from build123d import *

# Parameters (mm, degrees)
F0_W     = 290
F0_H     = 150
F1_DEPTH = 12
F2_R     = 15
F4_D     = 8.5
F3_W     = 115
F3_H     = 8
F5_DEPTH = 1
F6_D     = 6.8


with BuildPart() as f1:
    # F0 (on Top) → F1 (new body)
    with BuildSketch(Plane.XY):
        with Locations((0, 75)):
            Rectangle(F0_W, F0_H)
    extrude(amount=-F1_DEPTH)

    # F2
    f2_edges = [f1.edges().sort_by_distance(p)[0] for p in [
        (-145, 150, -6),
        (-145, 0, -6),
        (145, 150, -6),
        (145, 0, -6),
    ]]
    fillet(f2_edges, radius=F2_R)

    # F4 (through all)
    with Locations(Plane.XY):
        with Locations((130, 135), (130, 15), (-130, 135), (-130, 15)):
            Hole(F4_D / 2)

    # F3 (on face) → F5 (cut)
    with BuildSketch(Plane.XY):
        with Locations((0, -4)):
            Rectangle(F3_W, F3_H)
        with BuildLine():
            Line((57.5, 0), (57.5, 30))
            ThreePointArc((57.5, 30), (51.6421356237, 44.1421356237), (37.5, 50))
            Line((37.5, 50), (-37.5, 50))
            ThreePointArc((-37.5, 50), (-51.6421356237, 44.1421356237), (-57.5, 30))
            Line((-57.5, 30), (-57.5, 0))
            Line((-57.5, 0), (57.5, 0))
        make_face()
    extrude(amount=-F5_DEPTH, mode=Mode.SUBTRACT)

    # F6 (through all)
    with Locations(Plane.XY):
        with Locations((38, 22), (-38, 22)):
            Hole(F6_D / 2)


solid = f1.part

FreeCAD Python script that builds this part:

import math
import FreeCAD as App
import Part
import Sketcher
from FreeCAD import Vector


def edges_at(feature, points):
    """Names of the edges that pass closest to the given points."""
    edges = feature.Shape.Edges
    near = lambda p: min(range(len(edges)), key=lambda i: edges[i].distToShape(Part.Vertex(*p))[0])
    return sorted({f"Edge{near(p) + 1}" for p in points})


def add_polygon(sketch, points):
    """Adds a closed chain of lines whose ends are joined by coincident constraints."""
    first, n = sketch.GeometryCount, len(points)
    for a, b in zip(points, points[1:] + points[:1]):
        sketch.addGeometry(Part.LineSegment(App.Vector(*a, 0), App.Vector(*b, 0)), False)
    for i in range(n):
        sketch.addConstraint(Sketcher.Constraint("Coincident", first + i, 2, first + (i + 1) % n, 1))

doc = App.newDocument("Part")
params = doc.addObject("Spreadsheet::Sheet", "Params")
for row, (alias, value) in enumerate([
    ("sketch1_width", "290 mm"),
    ("sketch1_height", "150 mm"),
    ("pad1_length", "12 mm"),
    ("fillet_radius", "15 mm"),
    ("sketch2_diameter", "8.5 mm"),
    ("hole_diameter", "8.5 mm"),
    ("sketch3_radius", "20 mm"),
    ("sketch3_width", "115 mm"),
    ("sketch3_height", "38 mm"),
    ("pocket1_length", "1 mm"),
    ("sketch4_diameter", "6.8 mm"),
    ("hole2_diameter", "6.8 mm"),
], start=1):
    params.set(f"A{row}", alias)
    params.set(f"B{row}", "=" + value)
    params.setAlias(f"B{row}", alias)

body = doc.addObject("PartDesign::Body", "Body")

# Sketch on XY plane
sketch1 = body.newObject("Sketcher::SketchObject", "Sketch")
sketch1.AttachmentSupport = (doc.getObject("XY_Plane"), [""])
sketch1.MapMode = "FlatFace"
add_polygon(sketch1, [(-145, 150), (-145, 0), (145, 0), (145, 150)])  # lines 0-3
sketch1.addConstraint(Sketcher.Constraint("Vertical", 0))
sketch1.addConstraint(Sketcher.Constraint("Horizontal", 1))
sketch1.addConstraint(Sketcher.Constraint("Vertical", 2))
sketch1.addConstraint(Sketcher.Constraint("Horizontal", 3))
sketch1.addConstraint(Sketcher.Constraint("Symmetric", 0, 2, 1, 2, -1, 1))
sketch1.addConstraint(Sketcher.Constraint("DistanceX", 1, 1, 1, 2, 290.0))
sketch1.addConstraint(Sketcher.Constraint("DistanceY", 0, 2, 0, 1, 150.0))
sketch1.setExpression("Constraints[9]", "Params.sketch1_width")
sketch1.setExpression("Constraints[10]", "Params.sketch1_height")
pad1 = body.newObject("PartDesign::Pad", "Pad")
pad1.Profile = sketch1
pad1.setExpression("Length", "Params.pad1_length")
pad1.Reversed = True
doc.recompute()

fillet = body.newObject("PartDesign::Fillet", "Fillet")
fillet.Base = (pad1, edges_at(pad1, [
    (-145, 150, -6),
    (-145, 0, -6),
    (145, 150, -6),
    (145, 0, -6),
]))
fillet.setExpression("Radius", "Params.fillet_radius")

# Sketch on XY plane
sketch2 = body.newObject("Sketcher::SketchObject", "Sketch001")
sketch2.AttachmentSupport = (doc.getObject("XY_Plane"), [""])
sketch2.MapMode = "FlatFace"
sketch2.addGeometry(Part.Circle(Vector(130, 135, 0), Vector(0, 0, 1), 4.2), False)
sketch2.addGeometry(Part.Circle(Vector(130, 15, 0), Vector(0, 0, 1), 4.2), False)
sketch2.addGeometry(Part.Circle(Vector(-130, 135, 0), Vector(0, 0, 1), 4.2), False)
sketch2.addGeometry(Part.Circle(Vector(-130, 15, 0), Vector(0, 0, 1), 4.2), False)
sketch2.addConstraint(Sketcher.Constraint("Equal", 0, 1))
sketch2.addConstraint(Sketcher.Constraint("Equal", 1, 2))
sketch2.addConstraint(Sketcher.Constraint("Equal", 2, 3))
sketch2.addConstraint(Sketcher.Constraint("Symmetric", 0, 3, 2, 3, -2))
sketch2.addConstraint(Sketcher.Constraint("Symmetric", 1, 3, 3, 3, -2))
sketch2.addConstraint(Sketcher.Constraint("Vertical", 0, 3, 1, 3))
sketch2.addConstraint(Sketcher.Constraint("Diameter", 0, 8.5))
sketch2.addConstraint(Sketcher.Constraint("DistanceX", -1, 1, 0, 3, 130.0))
sketch2.addConstraint(Sketcher.Constraint("DistanceY", -1, 1, 0, 3, 135.0))
sketch2.addConstraint(Sketcher.Constraint("DistanceY", -1, 1, 1, 3, 15.0))
sketch2.setExpression("Constraints[6]", "Params.sketch2_diameter")
doc.recompute()
hole = body.newObject("PartDesign::Hole", "Hole")
hole.Profile = sketch2
hole.ThreadType = "None"
hole.setExpression("Diameter", "Params.hole_diameter")
hole.DepthType = "ThroughAll"

# Sketch on XY plane
sketch3 = body.newObject("Sketcher::SketchObject", "Sketch002")
sketch3.AttachmentSupport = (doc.getObject("XY_Plane"), [""])
sketch3.MapMode = "FlatFace"
sketch3.addGeometry(Part.LineSegment(Vector(-58, -8, 0), Vector(58, -8, 0)), False)
sketch3.addGeometry(Part.LineSegment(Vector(58, -8, 0), Vector(58, 30, 0)), False)
sketch3.addGeometry(Part.ArcOfCircle(Part.Circle(Vector(38, 30, 0), Vector(0, 0, 1), 20), math.radians(0), math.radians(90)), False)
sketch3.addGeometry(Part.LineSegment(Vector(38, 50, 0), Vector(-38, 50, 0)), False)
sketch3.addGeometry(Part.ArcOfCircle(Part.Circle(Vector(-38, 30, 0), Vector(0, 0, 1), 20), math.radians(90), math.radians(180)), False)
sketch3.addGeometry(Part.LineSegment(Vector(-58, 30, 0), Vector(-58, -8, 0)), False)
sketch3.addConstraint(Sketcher.Constraint("Coincident", 0, 2, 1, 1))
sketch3.addConstraint(Sketcher.Constraint("Tangent", 1, 2, 2, 1))
sketch3.addConstraint(Sketcher.Constraint("Tangent", 2, 2, 3, 1))
sketch3.addConstraint(Sketcher.Constraint("Tangent", 3, 2, 4, 1))
sketch3.addConstraint(Sketcher.Constraint("Tangent", 4, 2, 5, 1))
sketch3.addConstraint(Sketcher.Constraint("Coincident", 5, 2, 0, 1))
sketch3.addConstraint(Sketcher.Constraint("Horizontal", 0))
sketch3.addConstraint(Sketcher.Constraint("Vertical", 1))
sketch3.addConstraint(Sketcher.Constraint("Horizontal", 3))
sketch3.addConstraint(Sketcher.Constraint("Vertical", 5))
sketch3.addConstraint(Sketcher.Constraint("Equal", 2, 4))
sketch3.addConstraint(Sketcher.Constraint("Radius", 2, 20.0))
sketch3.addConstraint(Sketcher.Constraint("DistanceX", 0, 1, 0, 2, 115.0))
sketch3.addConstraint(Sketcher.Constraint("DistanceY", 1, 1, 1, 2, 38.0))
sketch3.addConstraint(Sketcher.Constraint("DistanceY", -1, 1, 2, 3, 30.0))
sketch3.addConstraint(Sketcher.Constraint("DistanceX", -1, 1, 2, 3, 37.5))
sketch3.setExpression("Constraints[11]", "Params.sketch3_radius")
sketch3.setExpression("Constraints[12]", "Params.sketch3_width")
sketch3.setExpression("Constraints[13]", "Params.sketch3_height")
pocket1 = body.newObject("PartDesign::Pocket", "Pocket")
pocket1.Profile = sketch3
pocket1.setExpression("Length", "Params.pocket1_length")

# Sketch on XY plane
sketch4 = body.newObject("Sketcher::SketchObject", "Sketch003")
sketch4.AttachmentSupport = (doc.getObject("XY_Plane"), [""])
sketch4.MapMode = "FlatFace"
sketch4.addGeometry(Part.Circle(Vector(38, 22, 0), Vector(0, 0, 1), 3.4), False)
sketch4.addGeometry(Part.Circle(Vector(-38, 22, 0), Vector(0, 0, 1), 3.4), False)
sketch4.addConstraint(Sketcher.Constraint("Equal", 0, 1))
sketch4.addConstraint(Sketcher.Constraint("Symmetric", 0, 3, 1, 3, -2))
sketch4.addConstraint(Sketcher.Constraint("Diameter", 0, 6.8))
sketch4.addConstraint(Sketcher.Constraint("DistanceX", -1, 1, 0, 3, 38.0))
sketch4.addConstraint(Sketcher.Constraint("DistanceY", -1, 1, 0, 3, 22.0))
sketch4.setExpression("Constraints[2]", "Params.sketch4_diameter")
doc.recompute()
hole2 = body.newObject("PartDesign::Hole", "Hole001")
hole2.Profile = sketch4
hole2.ThreadType = "None"
hole2.setExpression("Diameter", "Params.hole2_diameter")
hole2.DepthType = "ThroughAll"

doc.recompute()
